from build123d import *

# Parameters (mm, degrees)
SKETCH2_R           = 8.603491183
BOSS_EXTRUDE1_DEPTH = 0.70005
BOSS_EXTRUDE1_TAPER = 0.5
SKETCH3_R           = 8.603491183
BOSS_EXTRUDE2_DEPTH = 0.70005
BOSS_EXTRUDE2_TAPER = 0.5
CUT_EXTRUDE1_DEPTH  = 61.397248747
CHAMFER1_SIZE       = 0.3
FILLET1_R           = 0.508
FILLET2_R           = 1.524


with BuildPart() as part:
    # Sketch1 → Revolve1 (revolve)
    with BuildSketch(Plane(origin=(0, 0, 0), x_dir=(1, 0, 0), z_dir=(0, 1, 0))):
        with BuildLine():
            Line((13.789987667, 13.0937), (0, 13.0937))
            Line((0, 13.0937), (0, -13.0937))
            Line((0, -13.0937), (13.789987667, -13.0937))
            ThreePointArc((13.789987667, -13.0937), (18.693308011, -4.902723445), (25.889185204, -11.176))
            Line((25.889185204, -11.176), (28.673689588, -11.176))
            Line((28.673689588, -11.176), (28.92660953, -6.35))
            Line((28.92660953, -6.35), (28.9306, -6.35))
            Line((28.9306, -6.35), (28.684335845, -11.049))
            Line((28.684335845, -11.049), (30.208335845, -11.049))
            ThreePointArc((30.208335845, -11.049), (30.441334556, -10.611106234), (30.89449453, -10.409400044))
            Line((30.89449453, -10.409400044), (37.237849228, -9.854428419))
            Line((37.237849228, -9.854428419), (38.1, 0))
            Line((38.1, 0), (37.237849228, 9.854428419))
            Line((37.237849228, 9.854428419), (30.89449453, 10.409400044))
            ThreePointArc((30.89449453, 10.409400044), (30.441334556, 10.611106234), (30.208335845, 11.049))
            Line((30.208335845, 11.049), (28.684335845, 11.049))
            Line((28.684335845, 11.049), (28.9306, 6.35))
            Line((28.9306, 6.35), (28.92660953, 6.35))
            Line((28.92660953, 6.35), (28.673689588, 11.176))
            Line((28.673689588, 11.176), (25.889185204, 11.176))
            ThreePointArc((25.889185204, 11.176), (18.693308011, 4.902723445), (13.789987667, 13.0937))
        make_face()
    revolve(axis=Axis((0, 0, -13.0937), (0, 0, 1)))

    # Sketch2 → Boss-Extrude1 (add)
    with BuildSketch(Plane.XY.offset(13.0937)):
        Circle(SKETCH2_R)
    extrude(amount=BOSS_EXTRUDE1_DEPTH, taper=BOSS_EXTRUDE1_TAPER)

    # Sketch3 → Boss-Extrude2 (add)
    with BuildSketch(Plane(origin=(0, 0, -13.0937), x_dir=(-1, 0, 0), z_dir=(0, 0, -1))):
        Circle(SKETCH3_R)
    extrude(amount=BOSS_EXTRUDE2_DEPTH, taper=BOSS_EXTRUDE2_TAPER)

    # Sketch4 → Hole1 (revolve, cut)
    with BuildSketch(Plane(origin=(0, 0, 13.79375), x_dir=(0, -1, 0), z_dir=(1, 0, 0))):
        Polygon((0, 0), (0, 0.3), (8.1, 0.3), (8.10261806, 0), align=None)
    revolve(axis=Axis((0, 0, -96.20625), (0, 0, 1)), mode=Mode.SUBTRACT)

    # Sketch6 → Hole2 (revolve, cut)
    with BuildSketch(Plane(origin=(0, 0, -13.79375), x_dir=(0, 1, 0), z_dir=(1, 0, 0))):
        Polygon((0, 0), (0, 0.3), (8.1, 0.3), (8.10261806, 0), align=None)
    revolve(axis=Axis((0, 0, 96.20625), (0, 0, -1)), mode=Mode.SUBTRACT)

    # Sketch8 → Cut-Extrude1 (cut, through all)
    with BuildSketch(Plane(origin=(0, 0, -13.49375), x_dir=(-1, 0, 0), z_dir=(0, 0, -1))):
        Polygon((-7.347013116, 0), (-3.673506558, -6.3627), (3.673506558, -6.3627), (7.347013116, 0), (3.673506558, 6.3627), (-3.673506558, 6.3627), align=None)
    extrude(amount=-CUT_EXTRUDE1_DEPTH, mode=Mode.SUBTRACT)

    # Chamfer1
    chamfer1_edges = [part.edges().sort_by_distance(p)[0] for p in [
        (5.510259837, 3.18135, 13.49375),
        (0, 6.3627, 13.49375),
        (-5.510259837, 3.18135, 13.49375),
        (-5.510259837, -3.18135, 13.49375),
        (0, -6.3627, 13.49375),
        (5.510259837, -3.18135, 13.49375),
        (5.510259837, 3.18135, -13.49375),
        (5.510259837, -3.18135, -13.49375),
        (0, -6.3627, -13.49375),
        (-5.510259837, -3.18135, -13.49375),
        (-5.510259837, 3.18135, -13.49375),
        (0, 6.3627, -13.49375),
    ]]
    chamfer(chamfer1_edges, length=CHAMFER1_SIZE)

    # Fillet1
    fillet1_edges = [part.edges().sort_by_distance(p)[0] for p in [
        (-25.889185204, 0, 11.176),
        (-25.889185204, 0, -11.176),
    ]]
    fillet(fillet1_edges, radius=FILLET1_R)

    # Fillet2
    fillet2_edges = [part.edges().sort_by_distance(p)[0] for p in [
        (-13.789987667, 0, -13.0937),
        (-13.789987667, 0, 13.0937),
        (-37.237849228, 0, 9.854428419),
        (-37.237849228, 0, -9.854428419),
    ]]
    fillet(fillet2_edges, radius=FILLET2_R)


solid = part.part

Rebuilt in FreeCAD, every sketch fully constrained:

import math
import FreeCAD as App
import Part
import Sketcher

V = App.Vector
Q = App.Units.Quantity


def edges_at(feature, points):
    """Names of the edges that pass closest to the given points."""
    edges = feature.Shape.Edges
    near = lambda p: min(range(len(edges)), key=lambda i: edges[i].distToShape(Part.Vertex(*p))[0])
    return sorted({f"Edge{near(p) + 1}" for p in points})


def add_polygon(sketch, points):
    """Adds a closed chain of lines whose ends are joined by coincident constraints."""
    first, n = sketch.GeometryCount, len(points)
    for a, b in zip(points, points[1:] + points[:1]):
        sketch.addGeometry(Part.LineSegment(App.Vector(*a, 0), App.Vector(*b, 0)), False)
    for i in range(n):
        sketch.addConstraint(Sketcher.Constraint("Coincident", first + i, 2, first + (i + 1) % n, 1))

doc = App.newDocument("Part")
body = doc.addObject("PartDesign::Body", "Body")

sketch1 = doc.addObject("Sketcher::SketchObject", "Sketch")
body.addObject(sketch1)
sketch1.AttachmentSupport = (doc.XZ_Plane, [""])
sketch1.MapMode = "FlatFace"
sketch1.addGeometry(Part.LineSegment(V(13.79, -13.0937, 0), V(0, -13.0937, 0)), False)
sketch1.addGeometry(Part.LineSegment(V(0, -13.0937, 0), V(0, 13.0937, 0)), False)
sketch1.addGeometry(Part.LineSegment(V(0, 13.0937, 0), V(13.79, 13.0937, 0)), False)
sketch1.addGeometry(Part.ArcOfCircle(Part.Circle(V(19.6675, 11.049, 0), V(0, 0, 1), 6.223), math.radians(161), math.radians(361)), False)
sketch1.addGeometry(Part.LineSegment(V(25.8892, 11.176, 0), V(28.6737, 11.176, 0)), False)
sketch1.addGeometry(Part.LineSegment(V(28.6737, 11.176, 0), V(28.9266, 6.35, 0)), False)
sketch1.addGeometry(Part.LineSegment(V(28.9266, 6.35, 0), V(28.9306, 6.35, 0)), False)
sketch1.addGeometry(Part.LineSegment(V(28.9306, 6.35, 0), V(28.6843, 11.049, 0)), False)
sketch1.addGeometry(Part.LineSegment(V(28.6843, 11.049, 0), V(30.2083, 11.049, 0)), False)
sketch1.addGeometry(Part.ArcOfCircle(Part.Circle(V(30.9609, 11.1685, 0), V(0, 0, 1), 0.762), math.radians(-171), math.radians(-95)), False)
sketch1.addGeometry(Part.LineSegment(V(30.8945, 10.4094, 0), V(37.2378, 9.8544, 0)), False)
sketch1.addGeometry(Part.LineSegment(V(37.2378, 9.8544, 0), V(38.1, 0, 0)), False)
sketch1.addGeometry(Part.LineSegment(V(38.1, 0, 0), V(37.2378, -9.8544, 0)), False)
sketch1.addGeometry(Part.LineSegment(V(37.2378, -9.8544, 0), V(30.8945, -10.4094, 0)), False)
sketch1.addGeometry(Part.ArcOfCircle(Part.Circle(V(30.9609, -11.1685, 0), V(0, 0, 1), 0.762), math.radians(95), math.radians(171)), False)
sketch1.addGeometry(Part.LineSegment(V(30.2083, -11.049, 0), V(28.6843, -11.049, 0)), False)
sketch1.addGeometry(Part.LineSegment(V(28.6843, -11.049, 0), V(28.9306, -6.35, 0)), False)
sketch1.addGeometry(Part.LineSegment(V(28.9306, -6.35, 0), V(28.9266, -6.35, 0)), False)
sketch1.addGeometry(Part.LineSegment(V(28.9266, -6.35, 0), V(28.6737, -11.176, 0)), False)
sketch1.addGeometry(Part.LineSegment(V(28.6737, -11.176, 0), V(25.8892, -11.176, 0)), False)
sketch1.addGeometry(Part.ArcOfCircle(Part.Circle(V(19.6675, -11.049, 0), V(0, 0, 1), 6.223), math.radians(-1), math.radians(199)), False)
sketch1.addConstraint(Sketcher.Constraint("Coincident", 0, 2, 1, 1))
sketch1.addConstraint(Sketcher.Constraint("Coincident", 1, 2, 2, 1))
sketch1.addConstraint(Sketcher.Constraint("Coincident", 2, 2, 3, 1))
sketch1.addConstraint(Sketcher.Constraint("Coincident", 3, 2, 4, 1))
sketch1.addConstraint(Sketcher.Constraint("Coincident", 4, 2, 5, 1))
sketch1.addConstraint(Sketcher.Constraint("Coincident", 5, 2, 6, 1))
sketch1.addConstraint(Sketcher.Constraint("Coincident", 6, 2, 7, 1))
sketch1.addConstraint(Sketcher.Constraint("Coincident", 7, 2, 8, 1))
sketch1.addConstraint(Sketcher.Constraint("Coincident", 8, 2, 9, 1))
sketch1.addConstraint(Sketcher.Constraint("Tangent", 9, 2, 10, 1))
sketch1.addConstraint(Sketcher.Constraint("Coincident", 10, 2, 11, 1))
sketch1.addConstraint(Sketcher.Constraint("Coincident", 11, 2, 12, 1))
sketch1.addConstraint(Sketcher.Constraint("Coincident", 12, 2, 13, 1))
sketch1.addConstraint(Sketcher.Constraint("Tangent", 13, 2, 14, 1))
sketch1.addConstraint(Sketcher.Constraint("Coincident", 14, 2, 15, 1))
sketch1.addConstraint(Sketcher.Constraint("Coincident", 15, 2, 16, 1))
sketch1.addConstraint(Sketcher.Constraint("Coincident", 16, 2, 17, 1))
sketch1.addConstraint(Sketcher.Constraint("Coincident", 17, 2, 18, 1))
sketch1.addConstraint(Sketcher.Constraint("Coincident", 18, 2, 19, 1))
sketch1.addConstraint(Sketcher.Constraint("Coincident", 19, 2, 20, 1))
sketch1.addConstraint(Sketcher.Constraint("Coincident", 20, 2, 0, 1))
sketch1.addConstraint(Sketcher.Constraint("Horizontal", 0))
sketch1.addConstraint(Sketcher.Constraint("Vertical", 1))
sketch1.addConstraint(Sketcher.Constraint("Horizontal", 2))
sketch1.addConstraint(Sketcher.Constraint("Horizontal", 4))
sketch1.addConstraint(Sketcher.Constraint("Horizontal", 6))
sketch1.addConstraint(Sketcher.Constraint("Horizontal", 8))
sketch1.addConstraint(Sketcher.Constraint("Horizontal", 15))
sketch1.addConstraint(Sketcher.Constraint("Horizontal", 17))
sketch1.addConstraint(Sketcher.Constraint("Horizontal", 19))
sketch1.addConstraint(Sketcher.Constraint("Equal", 9, 14))
sketch1.addConstraint(Sketcher.Constraint("Equal", 3, 20))
sketch1.addConstraint(Sketcher.Constraint("Symmetric", 0, 2, 1, 2, -1, 1))
sketch1.addConstraint(Sketcher.Constraint("Symmetric", 9, 3, 14, 3, -1))
sketch1.addConstraint(Sketcher.Constraint("Symmetric", 3, 3, 20, 3, -1))
sketch1.addConstraint(Sketcher.Constraint("Symmetric", 10, 2, 12, 2, -1))
sketch1.addConstraint(Sketcher.Constraint("Symmetric", 7, 2, 15, 2, -1))
sketch1.addConstraint(Sketcher.Constraint("Symmetric", 6, 2, 16, 2, -1))
sketch1.addConstraint(Sketcher.Constraint("Symmetric", 4, 2, 18, 2, -1))
sketch1.addConstraint(Sketcher.Constraint("PointOnObject", 11, 2, -1))
sketch1.addConstraint(Sketcher.Constraint("Parallel", 5, 7))
sketch1.addConstraint(Sketcher.Constraint("Perpendicular", 10, 12))
sketch1.addConstraint(Sketcher.Constraint("Parallel", 16, 18))
sketch1.addConstraint(Sketcher.Constraint("Horizontal", 3, 3, 7, 2))
sketch1.addConstraint(Sketcher.Constraint("Radius", 9, Q("0.03 in")))
sketch1.addConstraint(Sketcher.Constraint("Angle", 5, Q("-87 deg")))
sketch1.addConstraint(Sketcher.Constraint("Angle", 10, Q("-5 deg")))
sketch1.addConstraint(Sketcher.Constraint("Radius", 3, Q("0.245 in")))
sketch1.addConstraint(Sketcher.Constraint("DistanceX", 8, 1, 8, 2, Q("0.06 in")))
sketch1.addConstraint(Sketcher.Constraint("DistanceX", -1, 1, 11, 2, Q("1.5 in")))
sketch1.addConstraint(Sketcher.Constraint("DistanceY", 1, 1, 1, 2, Q("1.031 in")))
sketch1.addConstraint(Sketcher.Constraint("DistanceY", -1, 1, 3, 2, Q("0.44 in")))
sketch1.addConstraint(Sketcher.Constraint("DistanceY", -1, 1, 5, 2, Q("0.25 in")))
sketch1.addConstraint(Sketcher.Constraint("DistanceY", 20, 3, 3, 3, Q("0.87 in")))
sketch1.addConstraint(Sketcher.Constraint("DistanceX", -1, 1, 6, 2, Q("1.139 in")))
sketch1.addConstraint(Sketcher.Constraint("DistanceX", 6, 1, 6, 2, 0.00399))
sketch1.addConstraint(Sketcher.Constraint("DistanceY", -1, 1, 9, 3, 11.1685))
sketch1.addConstraint(Sketcher.Constraint("DistanceX", 2, 2, 4, 2, 14.883702))
revolution = doc.addObject("PartDesign::Revolution", "Revolution")
body.addObject(revolution)
revolution.Profile = sketch1
revolution.ReferenceAxis = (sketch1, ["V_Axis"])
revolution.Angle = 360

sketch2 = doc.addObject("Sketcher::SketchObject", "Sketch001")
body.addObject(sketch2)
sketch2.AttachmentSupport = (doc.XY_Plane, [""])
sketch2.MapMode = "FlatFace"
sketch2.AttachmentOffset = App.Placement(V(0, 0, 0.5155 * 25.4), App.Rotation())
sketch2.addGeometry(Part.Circle(V(0, 0, 0), V(0, 0, 1), 9), False)
sketch2.addConstraint(Sketcher.Constraint("Coincident", 0, 3, -1, 1))
sketch2.addConstraint(Sketcher.Constraint("Diameter", 0, 17.206982))
pad1 = doc.addObject("PartDesign::Pad", "Pad")
body.addObject(pad1)
pad1.Profile = sketch2
pad1.Length = 0.70005
pad1.TaperAngle = -0.5

sketch3 = doc.addObject("Sketcher::SketchObject", "Sketch002")
body.addObject(sketch3)
sketch3.AttachmentSupport = (doc.XY_Plane, [""])
sketch3.MapMode = "FlatFace"
sketch3.AttachmentOffset = App.Placement(V(0, 0, -0.5155 * 25.4), App.Rotation())
sketch3.addGeometry(Part.Circle(V(0, 0, 0), V(0, 0, 1), 9), False)
sketch3.addConstraint(Sketcher.Constraint("Coincident", 0, 3, -1, 1))
sketch3.addConstraint(Sketcher.Constraint("Diameter", 0, 17.206982))
pad2 = doc.addObject("PartDesign::Pad", "Pad001")
body.addObject(pad2)
pad2.Profile = sketch3
pad2.Length = 0.70005
pad2.Reversed = True
pad2.TaperAngle = -0.5

sketch4 = doc.addObject("Sketcher::SketchObject", "Sketch003")
body.addObject(sketch4)
sketch4.AttachmentSupport = (doc.YZ_Plane, [""])
sketch4.MapMode = "FlatFace"
add_polygon(sketch4, [(0, 13.49), (0, 13.79), (-8.1, 13.79), (-8.1, 13.49)])
sketch4.addConstraint(Sketcher.Constraint("Vertical", 0))
sketch4.addConstraint(Sketcher.Constraint("Horizontal", 1))
sketch4.addConstraint(Sketcher.Constraint("Horizontal", 3))
sketch4.addConstraint(Sketcher.Constraint("PointOnObject", 0, 2, -2))
sketch4.addConstraint(Sketcher.Constraint("Angle", 2, Q("-89.5 deg")))
sketch4.addConstraint(Sketcher.Constraint("DistanceY", -1, 1, 2, 2, Q("0.53125 in")))
sketch4.addConstraint(Sketcher.Constraint("DistanceX", 3, 1, 3, 2, 8.1))
sketch4.addConstraint(Sketcher.Constraint("DistanceY", 0, 1, 0, 2, 0.3))
groove = doc.addObject("PartDesign::Groove", "Groove")
body.addObject(groove)
groove.Profile = sketch4
groove.ReferenceAxis = (sketch4, ["V_Axis"])
groove.Angle = 360

sketch5 = doc.addObject("Sketcher::SketchObject", "Sketch004")
body.addObject(sketch5)
sketch5.AttachmentSupport = (doc.YZ_Plane, [""])
sketch5.MapMode = "FlatFace"
add_polygon(sketch5, [(0, -13.49), (0, -13.79), (8.1, -13.79), (8.1, -13.49)])
sketch5.addConstraint(Sketcher.Constraint("Vertical", 0))
sketch5.addConstraint(Sketcher.Constraint("Horizontal", 1))
sketch5.addConstraint(Sketcher.Constraint("Horizontal", 3))
sketch5.addConstraint(Sketcher.Constraint("PointOnObject", 0, 2, -2))
sketch5.addConstraint(Sketcher.Constraint("Angle", 2, Q("90.5 deg")))
sketch5.addConstraint(Sketcher.Constraint("DistanceY", 2, 2, -1, 1, Q("0.53125 in")))
sketch5.addConstraint(Sketcher.Constraint("DistanceX", 3, 2, 3, 1, 8.1))
sketch5.addConstraint(Sketcher.Constraint("DistanceY", 0, 2, 0, 1, 0.3))
groove2 = doc.addObject("PartDesign::Groove", "Groove001")
body.addObject(groove2)
groove2.Profile = sketch5
groove2.ReferenceAxis = (sketch5, ["V_Axis"])
groove2.Angle = 360

sketch6 = doc.addObject("Sketcher::SketchObject", "Sketch005")
body.addObject(sketch6)
sketch6.AttachmentSupport = (doc.XY_Plane, [""])
sketch6.MapMode = "FlatFace"
sketch6.AttachmentOffset = App.Placement(V(0, 0, -0.53125 * 25.4), App.Rotation())
add_polygon(sketch6, [(7, 0), (4, -6), (-4, -6), (-7, 0), (-4, 6), (4, 6)])
sketch6.addConstraint(Sketcher.Constraint("Horizontal", 1))
sketch6.addConstraint(Sketcher.Constraint("Horizontal", 4))
sketch6.addConstraint(Sketcher.Constraint("Symmetric", 0, 2, 3, 2, -1, 1))
sketch6.addConstraint(Sketcher.Constraint("Symmetric", 2, 2, 5, 2, -1, 1))
sketch6.addConstraint(Sketcher.Constraint("PointOnObject", 2, 2, -1))
sketch6.addConstraint(Sketcher.Constraint("Parallel", 2, 5))
sketch6.addConstraint(Sketcher.Constraint("Vertical", 1, 2, 3, 2))
sketch6.addConstraint(Sketcher.Constraint("Angle", 0, Q("-120 deg")))
sketch6.addConstraint(Sketcher.Constraint("DistanceY", 1, 2, 3, 2, Q("0.501 in")))
sketch6.addConstraint(Sketcher.Constraint("DistanceX", 1, 2, 1, 1, 7.347013))
pocket1 = doc.addObject("PartDesign::Pocket", "Pocket")
body.addObject(pocket1)
pocket1.Profile = sketch6
pocket1.Type = "ThroughAll"
pocket1.Reversed = True
doc.recompute()

chamfer = doc.addObject("PartDesign::Chamfer", "Chamfer")
body.addObject(chamfer)
chamfer.Base = (pocket1, edges_at(pocket1, [
    (5.51, 3.181, 13.494),
    (0, 6.363, 13.494),
    (-5.51, 3.181, 13.494),
    (-5.51, -3.181, 13.494),
    (0, -6.363, 13.494),
    (5.51, -3.181, 13.494),
    (5.51, 3.181, -13.494),
    (5.51, -3.181, -13.494),
    (0, -6.363, -13.494),
    (-5.51, -3.181, -13.494),
    (-5.51, 3.181, -13.494),
    (0, 6.363, -13.494),
]))
chamfer.Size = 0.3
doc.recompute()

fillet = doc.addObject("PartDesign::Fillet", "Fillet")
body.addObject(fillet)
fillet.Base = (chamfer, edges_at(chamfer, [(-25.889, 0, 11.176), (-25.889, 0, -11.176)]))
fillet.Radius = Q("0.02 in")
doc.recompute()

fillet2 = doc.addObject("PartDesign::Fillet", "Fillet001")
body.addObject(fillet2)
fillet2.Base = (fillet, edges_at(fillet, [
    (-13.79, 0, -13.094),
    (-13.79, 0, 13.094),
    (-37.238, 0, 9.854),
    (-37.238, 0, -9.854),
]))
fillet2.Radius = Q("0.06 in")

doc.recompute()
